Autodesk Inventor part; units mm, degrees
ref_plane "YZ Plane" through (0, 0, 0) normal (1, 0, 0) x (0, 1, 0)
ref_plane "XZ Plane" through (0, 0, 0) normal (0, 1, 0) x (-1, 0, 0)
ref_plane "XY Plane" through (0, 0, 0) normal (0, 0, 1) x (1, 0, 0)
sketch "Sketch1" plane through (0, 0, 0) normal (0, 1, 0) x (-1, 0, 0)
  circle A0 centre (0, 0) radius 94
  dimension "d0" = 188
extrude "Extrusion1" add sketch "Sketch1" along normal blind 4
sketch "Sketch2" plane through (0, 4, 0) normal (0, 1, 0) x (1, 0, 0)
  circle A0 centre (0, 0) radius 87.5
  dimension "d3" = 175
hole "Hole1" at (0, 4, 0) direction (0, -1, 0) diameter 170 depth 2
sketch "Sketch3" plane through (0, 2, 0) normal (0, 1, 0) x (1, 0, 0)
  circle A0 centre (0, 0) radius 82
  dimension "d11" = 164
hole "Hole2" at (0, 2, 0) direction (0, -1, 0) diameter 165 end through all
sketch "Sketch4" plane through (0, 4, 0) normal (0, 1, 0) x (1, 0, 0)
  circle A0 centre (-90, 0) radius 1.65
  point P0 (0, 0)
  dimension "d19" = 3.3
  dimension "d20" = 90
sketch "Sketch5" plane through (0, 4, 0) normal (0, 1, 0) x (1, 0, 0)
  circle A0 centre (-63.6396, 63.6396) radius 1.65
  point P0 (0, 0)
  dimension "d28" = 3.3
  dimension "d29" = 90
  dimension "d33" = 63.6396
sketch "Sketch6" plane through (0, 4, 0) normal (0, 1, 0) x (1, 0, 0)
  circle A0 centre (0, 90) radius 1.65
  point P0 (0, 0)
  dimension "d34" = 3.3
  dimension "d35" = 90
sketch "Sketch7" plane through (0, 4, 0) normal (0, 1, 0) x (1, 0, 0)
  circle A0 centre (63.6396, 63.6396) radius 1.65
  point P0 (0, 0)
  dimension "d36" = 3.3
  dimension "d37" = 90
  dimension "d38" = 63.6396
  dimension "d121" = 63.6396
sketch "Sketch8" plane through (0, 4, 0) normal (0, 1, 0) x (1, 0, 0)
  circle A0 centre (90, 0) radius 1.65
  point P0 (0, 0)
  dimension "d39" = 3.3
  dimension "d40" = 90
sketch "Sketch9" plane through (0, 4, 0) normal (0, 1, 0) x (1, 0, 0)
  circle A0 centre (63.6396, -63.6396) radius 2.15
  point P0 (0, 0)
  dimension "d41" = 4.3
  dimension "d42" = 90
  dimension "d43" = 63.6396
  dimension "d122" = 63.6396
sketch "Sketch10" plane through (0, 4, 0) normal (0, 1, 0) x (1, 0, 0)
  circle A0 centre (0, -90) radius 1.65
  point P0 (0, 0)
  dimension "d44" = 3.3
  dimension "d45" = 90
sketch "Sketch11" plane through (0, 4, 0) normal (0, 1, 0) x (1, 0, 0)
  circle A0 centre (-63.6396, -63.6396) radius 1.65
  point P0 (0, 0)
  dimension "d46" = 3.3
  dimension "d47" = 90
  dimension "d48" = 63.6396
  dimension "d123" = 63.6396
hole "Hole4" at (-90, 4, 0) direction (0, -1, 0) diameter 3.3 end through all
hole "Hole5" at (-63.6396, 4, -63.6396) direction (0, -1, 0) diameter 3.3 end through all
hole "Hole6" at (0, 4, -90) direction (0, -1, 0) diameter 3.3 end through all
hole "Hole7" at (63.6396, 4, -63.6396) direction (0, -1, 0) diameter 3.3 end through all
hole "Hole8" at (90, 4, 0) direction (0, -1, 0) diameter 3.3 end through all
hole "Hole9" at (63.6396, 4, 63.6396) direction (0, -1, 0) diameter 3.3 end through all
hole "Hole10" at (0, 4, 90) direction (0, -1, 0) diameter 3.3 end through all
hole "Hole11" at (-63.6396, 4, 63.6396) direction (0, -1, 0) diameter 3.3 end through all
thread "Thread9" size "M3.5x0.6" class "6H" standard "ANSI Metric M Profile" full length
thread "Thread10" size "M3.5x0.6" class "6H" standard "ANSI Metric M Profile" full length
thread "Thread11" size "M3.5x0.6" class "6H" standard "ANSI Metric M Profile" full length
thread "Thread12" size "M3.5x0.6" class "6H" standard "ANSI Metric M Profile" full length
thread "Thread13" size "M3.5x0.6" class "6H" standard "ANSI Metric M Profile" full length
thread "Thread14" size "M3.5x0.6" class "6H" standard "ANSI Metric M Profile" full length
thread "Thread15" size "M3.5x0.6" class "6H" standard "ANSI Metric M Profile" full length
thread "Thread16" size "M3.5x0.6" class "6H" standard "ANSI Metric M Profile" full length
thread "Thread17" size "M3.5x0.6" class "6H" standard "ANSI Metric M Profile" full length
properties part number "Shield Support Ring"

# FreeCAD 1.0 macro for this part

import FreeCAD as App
import Part
import Sketcher
Q = App.Units.Quantity

doc = App.newDocument("Part")
body = doc.addObject("PartDesign::Body", "Body")

# Sketch on XZ plane
sketch1 = doc.addObject("Sketcher::SketchObject", "Sketch")
body.addObject(sketch1)
sketch1.AttachmentSupport = (doc.XZ_Plane, [""])
sketch1.MapMode = "FlatFace"
sketch1.addGeometry(Part.Circle(App.Vector(0, 0, 0), App.Vector(0, 0, 1), 94), False)
sketch1.addConstraint(Sketcher.Constraint("Coincident", 0, 3, -1, 1))
sketch1.addConstraint(Sketcher.Constraint("Diameter", 0, Q("188 mm")))
pad1 = doc.addObject("PartDesign::Pad", "Pad")
body.addObject(pad1)
pad1.Profile = sketch1
pad1.Length = 4
pad1.Reversed = True

# Sketch on XZ plane
sketch2 = doc.addObject("Sketcher::SketchObject", "Sketch001")
body.addObject(sketch2)
sketch2.AttachmentSupport = (doc.XZ_Plane, [""])
sketch2.MapMode = "FlatFace"
sketch2.AttachmentOffset = App.Placement(App.Vector(0, 0, -4), App.Rotation())
sketch2.addGeometry(Part.Circle(App.Vector(0, 0, 0), App.Vector(0, 0, 1), 85), False)
sketch2.addConstraint(Sketcher.Constraint("Coincident", 0, 3, -1, 1))
sketch2.addConstraint(Sketcher.Constraint("Diameter", 0, Q("170 mm")))
doc.recompute()
hole = doc.addObject("PartDesign::Hole", "Hole")
body.addObject(hole)
hole.Profile = sketch2
hole.ThreadType = "None"
hole.Diameter = 170
hole.DepthType = "Dimension"
hole.Depth = 2
hole.DrillPoint = "Flat"
hole.Reversed = True

# Sketch on XZ plane
sketch3 = doc.addObject("Sketcher::SketchObject", "Sketch002")
body.addObject(sketch3)
sketch3.AttachmentSupport = (doc.XZ_Plane, [""])
sketch3.MapMode = "FlatFace"
sketch3.AttachmentOffset = App.Placement(App.Vector(0, 0, -2), App.Rotation())
sketch3.addGeometry(Part.Circle(App.Vector(0, 0, 0), App.Vector(0, 0, 1), 82), False)
sketch3.addConstraint(Sketcher.Constraint("Coincident", 0, 3, -1, 1))
sketch3.addConstraint(Sketcher.Constraint("Diameter", 0, Q("165 mm")))
doc.recompute()
hole2 = doc.addObject("PartDesign::Hole", "Hole001")
body.addObject(hole2)
hole2.Profile = sketch3
hole2.ThreadType = "None"
hole2.Diameter = 165
hole2.DepthType = "ThroughAll"
hole2.Reversed = True

# Sketch on XZ plane
sketch4 = doc.addObject("Sketcher::SketchObject", "Sketch003")
body.addObject(sketch4)
sketch4.AttachmentSupport = (doc.XZ_Plane, [""])
sketch4.MapMode = "FlatFace"
sketch4.AttachmentOffset = App.Placement(App.Vector(0, 0, -4), App.Rotation())
sketch4.addGeometry(Part.Circle(App.Vector(-90, 0, 0), App.Vector(0, 0, 1), 1.6), False)
sketch4.addConstraint(Sketcher.Constraint("PointOnObject", 0, 3, -1))
sketch4.addConstraint(Sketcher.Constraint("Diameter", 0, Q("3.3 mm")))
sketch4.addConstraint(Sketcher.Constraint("DistanceX", 0, 3, -1, 1, Q("90 mm")))
doc.recompute()
hole3 = doc.addObject("PartDesign::Hole", "Hole002")
body.addObject(hole3)
hole3.Profile = sketch4
hole3.ThreadType = "None"
hole3.Diameter = 3.3
hole3.DepthType = "ThroughAll"
hole3.Reversed = True

# Sketch on XZ plane
sketch5 = doc.addObject("Sketcher::SketchObject", "Sketch004")
body.addObject(sketch5)
sketch5.AttachmentSupport = (doc.XZ_Plane, [""])
sketch5.MapMode = "FlatFace"
sketch5.AttachmentOffset = App.Placement(App.Vector(0, 0, -4), App.Rotation())
sketch5.addGeometry(Part.Circle(App.Vector(-63.6, -63.6, 0), App.Vector(0, 0, 1), 1.6), False)
sketch5.addConstraint(Sketcher.Constraint("Diameter", 0, Q("3.3 mm")))
sketch5.addConstraint(Sketcher.Constraint("DistanceX", 0, 3, -1, 1, Q("63.6396 mm")))
sketch5.addConstraint(Sketcher.Constraint("DistanceY", 0, 3, -1, 1, Q("63.6396 mm")))
doc.recompute()
hole4 = doc.addObject("PartDesign::Hole", "Hole003")
body.addObject(hole4)
hole4.Profile = sketch5
hole4.ThreadType = "None"
hole4.Diameter = 3.3
hole4.DepthType = "ThroughAll"
hole4.Reversed = True

# Sketch on XZ plane
sketch6 = doc.addObject("Sketcher::SketchObject", "Sketch005")
body.addObject(sketch6)
sketch6.AttachmentSupport = (doc.XZ_Plane, [""])
sketch6.MapMode = "FlatFace"
sketch6.AttachmentOffset = App.Placement(App.Vector(0, 0, -4), App.Rotation())
sketch6.addGeometry(Part.Circle(App.Vector(0, -90, 0), App.Vector(0, 0, 1), 1.6), False)
sketch6.addConstraint(Sketcher.Constraint("PointOnObject", 0, 3, -2))
sketch6.addConstraint(Sketcher.Constraint("Diameter", 0, Q("3.3 mm")))
sketch6.addConstraint(Sketcher.Constraint("DistanceY", 0, 3, -1, 1, Q("90 mm")))
doc.recompute()
hole5 = doc.addObject("PartDesign::Hole", "Hole004")
body.addObject(hole5)
hole5.Profile = sketch6
hole5.ThreadType = "None"
hole5.Diameter = 3.3
hole5.DepthType = "ThroughAll"
hole5.Reversed = True

# Sketch on XZ plane
sketch7 = doc.addObject("Sketcher::SketchObject", "Sketch006")
body.addObject(sketch7)
sketch7.AttachmentSupport = (doc.XZ_Plane, [""])
sketch7.MapMode = "FlatFace"
sketch7.AttachmentOffset = App.Placement(App.Vector(0, 0, -4), App.Rotation())
sketch7.addGeometry(Part.Circle(App.Vector(63.6, -63.6, 0), App.Vector(0, 0, 1), 1.6), False)
sketch7.addConstraint(Sketcher.Constraint("Diameter", 0, Q("3.3 mm")))
sketch7.addConstraint(Sketcher.Constraint("DistanceX", -1, 1, 0, 3, Q("63.6396 mm")))
sketch7.addConstraint(Sketcher.Constraint("DistanceY", 0, 3, -1, 1, Q("63.6396 mm")))
doc.recompute()
hole6 = doc.addObject("PartDesign::Hole", "Hole005")
body.addObject(hole6)
hole6.Profile = sketch7
hole6.ThreadType = "None"
hole6.Diameter = 3.3
hole6.DepthType = "ThroughAll"
hole6.Reversed = True

# Sketch on XZ plane
sketch8 = doc.addObject("Sketcher::SketchObject", "Sketch007")
body.addObject(sketch8)
sketch8.AttachmentSupport = (doc.XZ_Plane, [""])
sketch8.MapMode = "FlatFace"
sketch8.AttachmentOffset = App.Placement(App.Vector(0, 0, -4), App.Rotation())
sketch8.addGeometry(Part.Circle(App.Vector(90, 0, 0), App.Vector(0, 0, 1), 1.6), False)
sketch8.addConstraint(Sketcher.Constraint("PointOnObject", 0, 3, -1))
sketch8.addConstraint(Sketcher.Constraint("Diameter", 0, Q("3.3 mm")))
sketch8.addConstraint(Sketcher.Constraint("DistanceX", -1, 1, 0, 3, Q("90 mm")))
doc.recompute()
hole7 = doc.addObject("PartDesign::Hole", "Hole006")
body.addObject(hole7)
hole7.Profile = sketch8
hole7.ThreadType = "None"
hole7.Diameter = 3.3
hole7.DepthType = "ThroughAll"
hole7.Reversed = True

# Sketch on XZ plane
sketch9 = doc.addObject("Sketcher::SketchObject", "Sketch008")
body.addObject(sketch9)
sketch9.AttachmentSupport = (doc.XZ_Plane, [""])
sketch9.MapMode = "FlatFace"
sketch9.AttachmentOffset = App.Placement(App.Vector(0, 0, -4), App.Rotation())
sketch9.addGeometry(Part.Circle(App.Vector(63.6, 63.6, 0), App.Vector(0, 0, 1), 1.6), False)
sketch9.addConstraint(Sketcher.Constraint("Diameter", 0, Q("3.3 mm")))
sketch9.addConstraint(Sketcher.Constraint("DistanceX", -1, 1, 0, 3, Q("63.6396 mm")))
sketch9.addConstraint(Sketcher.Constraint("DistanceY", -1, 1, 0, 3, Q("63.6396 mm")))
doc.recompute()
hole8 = doc.addObject("PartDesign::Hole", "Hole007")
body.addObject(hole8)
hole8.Profile = sketch9
hole8.ThreadType = "None"
hole8.Diameter = 3.3
hole8.DepthType = "ThroughAll"
hole8.Reversed = True

# Sketch on XZ plane
sketch10 = doc.addObject("Sketcher::SketchObject", "Sketch009")
body.addObject(sketch10)
sketch10.AttachmentSupport = (doc.XZ_Plane, [""])
sketch10.MapMode = "FlatFace"
sketch10.AttachmentOffset = App.Placement(App.Vector(0, 0, -4), App.Rotation())
sketch10.addGeometry(Part.Circle(App.Vector(0, 90, 0), App.Vector(0, 0, 1), 1.6), False)
sketch10.addConstraint(Sketcher.Constraint("PointOnObject", 0, 3, -2))
sketch10.addConstraint(Sketcher.Constraint("Diameter", 0, Q("3.3 mm")))
sketch10.addConstraint(Sketcher.Constraint("DistanceY", -1, 1, 0, 3, Q("90 mm")))
doc.recompute()
hole9 = doc.addObject("PartDesign::Hole", "Hole008")
body.addObject(hole9)
hole9.Profile = sketch10
hole9.ThreadType = "None"
hole9.Diameter = 3.3
hole9.DepthType = "ThroughAll"
hole9.Reversed = True

# Sketch on XZ plane
sketch11 = doc.addObject("Sketcher::SketchObject", "Sketch010")
body.addObject(sketch11)
sketch11.AttachmentSupport = (doc.XZ_Plane, [""])
sketch11.MapMode = "FlatFace"
sketch11.AttachmentOffset = App.Placement(App.Vector(0, 0, -4), App.Rotation())
sketch11.addGeometry(Part.Circle(App.Vector(-63.6, 63.6, 0), App.Vector(0, 0, 1), 1.6), False)
sketch11.addConstraint(Sketcher.Constraint("Diameter", 0, Q("3.3 mm")))
sketch11.addConstraint(Sketcher.Constraint("DistanceX", 0, 3, -1, 1, Q("63.6396 mm")))
sketch11.addConstraint(Sketcher.Constraint("DistanceY", -1, 1, 0, 3, Q("63.6396 mm")))
doc.recompute()
hole10 = doc.addObject("PartDesign::Hole", "Hole009")
body.addObject(hole10)
hole10.Profile = sketch11
hole10.ThreadType = "None"
hole10.Diameter = 3.3
hole10.DepthType = "ThroughAll"
hole10.Reversed = True

doc.recompute()
